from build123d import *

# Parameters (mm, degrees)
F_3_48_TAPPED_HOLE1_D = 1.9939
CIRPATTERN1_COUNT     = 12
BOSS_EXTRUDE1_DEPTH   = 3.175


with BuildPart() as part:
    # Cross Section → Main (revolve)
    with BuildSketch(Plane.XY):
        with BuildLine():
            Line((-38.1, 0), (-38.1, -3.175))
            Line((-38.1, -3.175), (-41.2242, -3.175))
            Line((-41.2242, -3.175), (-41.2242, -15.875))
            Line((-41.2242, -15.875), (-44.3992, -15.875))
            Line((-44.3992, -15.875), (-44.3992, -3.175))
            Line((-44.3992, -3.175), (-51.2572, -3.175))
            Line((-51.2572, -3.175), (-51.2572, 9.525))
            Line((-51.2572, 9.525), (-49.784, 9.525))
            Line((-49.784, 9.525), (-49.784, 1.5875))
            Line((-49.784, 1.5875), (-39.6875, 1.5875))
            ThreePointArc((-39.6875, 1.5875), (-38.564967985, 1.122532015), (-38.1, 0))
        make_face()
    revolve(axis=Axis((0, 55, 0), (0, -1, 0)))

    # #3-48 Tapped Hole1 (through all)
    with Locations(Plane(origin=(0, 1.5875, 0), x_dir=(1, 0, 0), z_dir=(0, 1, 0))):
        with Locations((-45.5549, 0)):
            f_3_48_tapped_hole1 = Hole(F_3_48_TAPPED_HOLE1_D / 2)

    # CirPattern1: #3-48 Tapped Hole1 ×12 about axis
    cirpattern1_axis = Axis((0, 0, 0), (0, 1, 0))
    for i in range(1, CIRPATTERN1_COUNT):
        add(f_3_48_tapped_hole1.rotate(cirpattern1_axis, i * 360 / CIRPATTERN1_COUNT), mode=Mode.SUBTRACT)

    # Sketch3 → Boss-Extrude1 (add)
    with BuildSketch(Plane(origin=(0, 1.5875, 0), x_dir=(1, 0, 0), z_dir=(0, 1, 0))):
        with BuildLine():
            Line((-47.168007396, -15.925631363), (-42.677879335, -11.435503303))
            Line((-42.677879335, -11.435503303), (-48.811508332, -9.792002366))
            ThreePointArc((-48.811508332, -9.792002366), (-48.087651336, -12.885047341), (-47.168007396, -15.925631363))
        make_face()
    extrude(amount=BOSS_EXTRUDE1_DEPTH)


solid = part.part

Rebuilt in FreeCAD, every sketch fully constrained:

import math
import FreeCAD as App
import Part
import Sketcher
from FreeCAD import Vector
Q = App.Units.Quantity

doc = App.newDocument("Part")
body = doc.addObject("PartDesign::Body", "Body")

sketch1 = body.newObject("Sketcher::SketchObject", "Sketch")
sketch1.AttachmentSupport = (doc.getObject("XY_Plane"), [""])
sketch1.MapMode = "FlatFace"
sketch1.addGeometry([
    Part.LineSegment(Vector(-38.1, -3.2, 0), Vector(-38.1, 0, 0)),
    Part.ArcOfCircle(Part.Circle(Vector(-39.7, 0, 0), Vector(0, 0, 1), 1.6), math.radians(0), math.radians(90)),
    Part.LineSegment(Vector(-39.7, 1.6, 0), Vector(-49.8, 1.6, 0)),
    Part.LineSegment(Vector(-49.8, 1.6, 0), Vector(-49.8, 9.5, 0)),
    Part.LineSegment(Vector(-49.8, 9.5, 0), Vector(-51.3, 9.5, 0)),
    Part.LineSegment(Vector(-51.3, 9.5, 0), Vector(-51.3, -3.2, 0)),
    Part.LineSegment(Vector(-51.3, -3.2, 0), Vector(-44.4, -3.2, 0)),
    Part.LineSegment(Vector(-44.4, -3.2, 0), Vector(-44.4, -15.9, 0)),
    Part.LineSegment(Vector(-44.4, -15.9, 0), Vector(-41.2, -15.9, 0)),
    Part.LineSegment(Vector(-41.2, -15.9, 0), Vector(-41.2, -3.2, 0)),
    Part.LineSegment(Vector(-41.2, -3.2, 0), Vector(-38.1, -3.2, 0)),
], False)
sketch1.addConstraint([
    Sketcher.Constraint("Tangent", 0, 2, 1, 1),
    Sketcher.Constraint("Tangent", 1, 2, 2, 1),
    Sketcher.Constraint("Coincident", 2, 2, 3, 1),
    Sketcher.Constraint("Coincident", 3, 2, 4, 1),
    Sketcher.Constraint("Coincident", 4, 2, 5, 1),
    Sketcher.Constraint("Coincident", 5, 2, 6, 1),
    Sketcher.Constraint("Coincident", 6, 2, 7, 1),
    Sketcher.Constraint("Coincident", 7, 2, 8, 1),
    Sketcher.Constraint("Coincident", 8, 2, 9, 1),
    Sketcher.Constraint("Coincident", 9, 2, 10, 1),
    Sketcher.Constraint("Coincident", 10, 2, 0, 1),
    Sketcher.Constraint("Vertical", 0),
    Sketcher.Constraint("Horizontal", 2),
    Sketcher.Constraint("Vertical", 3),
    Sketcher.Constraint("Horizontal", 4),
    Sketcher.Constraint("Vertical", 5),
    Sketcher.Constraint("Horizontal", 6),
    Sketcher.Constraint("Vertical", 7),
    Sketcher.Constraint("Horizontal", 8),
    Sketcher.Constraint("Vertical", 9),
    Sketcher.Constraint("Horizontal", 10),
    Sketcher.Constraint("PointOnObject", 1, 3, -1),
    Sketcher.Constraint("Horizontal", 6, 2, 9, 2),
    Sketcher.Constraint("Equal", 8, 0),
    Sketcher.Constraint("Equal", 5, 7),
    Sketcher.Constraint("DistanceY", 5, 2, 5, 1, Q("0.5 in")),
    Sketcher.Constraint("Radius", 1, Q("0.0625 in")),
    Sketcher.Constraint("DistanceX", 6, 1, 6, 2, Q("0.27 in")),
    Sketcher.Constraint("DistanceX", 0, 2, -1, 1, Q("1.5 in")),
    Sketcher.Constraint("DistanceX", 4, 2, 4, 1, Q("0.058 in")),
    Sketcher.Constraint("DistanceX", 8, 1, 8, 2, Q("0.125 in")),
    Sketcher.Constraint("DistanceX", 10, 1, 10, 2, Q("0.123 in")),
])
revolution = body.newObject("PartDesign::Revolution", "Revolution")
revolution.Profile = sketch1
revolution.ReferenceAxis = (sketch1, ["V_Axis"])
revolution.Angle = 360

sketch2 = body.newObject("Sketcher::SketchObject", "Sketch001")
sketch2.AttachmentSupport = (doc.getObject("XZ_Plane"), [""])
sketch2.MapMode = "FlatFace"
sketch2.AttachmentOffset = App.Placement(Vector(0, 0, -0.0625 * 25.4), App.Rotation())
sketch2.addGeometry(Part.Circle(Vector(-45.6, 0, 0), Vector(0, 0, 1), 1), False)
sketch2.addConstraint([
    Sketcher.Constraint("PointOnObject", 0, 3, -1),
    Sketcher.Constraint("Diameter", 0, Q("0.0785 in")),
    Sketcher.Constraint("DistanceX", 0, 3, -1, 1, Q("1.7935 in")),
])
doc.recompute()
hole = body.newObject("PartDesign::Hole", "Hole")
hole.Profile = sketch2
hole.ThreadType = "None"
hole.Diameter = Q("0.0785 in")
hole.DepthType = "ThroughAll"
hole.Reversed = True
doc.recompute()

polarpattern = body.newObject("PartDesign::PolarPattern", "PolarPattern")
polarpattern.Originals = [hole]
polarpattern.Axis = (doc.getObject("Y_Axis"), [""])
polarpattern.Angle = 360
polarpattern.Occurrences = 12
body.Tip = polarpattern

sketch3 = body.newObject("Sketcher::SketchObject", "Sketch002")
sketch3.AttachmentSupport = (doc.getObject("XZ_Plane"), [""])
sketch3.MapMode = "FlatFace"
sketch3.AttachmentOffset = App.Placement(Vector(0, 0, -0.0625 * 25.4), App.Rotation())
sketch3.addGeometry([
    Part.LineSegment(Vector(-47, 16, 0), Vector(-43, 11, 0)),
    Part.LineSegment(Vector(-43, 11, 0), Vector(-49, 10, 0)),
    Part.ArcOfCircle(Part.Circle(Vector(0, 0, 0), Vector(0, 0, 1), 50), math.radians(161.34), math.radians(168.66)),
], False)
sketch3.addConstraint([
    Sketcher.Constraint("Coincident", 0, 2, 1, 1),
    Sketcher.Constraint("Coincident", 1, 2, 2, 2),
    Sketcher.Constraint("Coincident", 2, 1, 0, 1),
    Sketcher.Constraint("Coincident", 2, 3, -1, 1),
    Sketcher.Constraint("Equal", 0, 1),
    Sketcher.Constraint("Radius", 2, Q("1.96 in")),
    Sketcher.Constraint("Angle", 0, Q("-45 deg")),
    Sketcher.Constraint("Angle", 1, Q("-165 deg")),
    Sketcher.Constraint("Distance", 0, Q("0.25 in")),
])
pad1 = body.newObject("PartDesign::Pad", "Pad")
pad1.Profile = sketch3
pad1.Length = Q("0.125 in")
pad1.Reversed = True

doc.recompute()
